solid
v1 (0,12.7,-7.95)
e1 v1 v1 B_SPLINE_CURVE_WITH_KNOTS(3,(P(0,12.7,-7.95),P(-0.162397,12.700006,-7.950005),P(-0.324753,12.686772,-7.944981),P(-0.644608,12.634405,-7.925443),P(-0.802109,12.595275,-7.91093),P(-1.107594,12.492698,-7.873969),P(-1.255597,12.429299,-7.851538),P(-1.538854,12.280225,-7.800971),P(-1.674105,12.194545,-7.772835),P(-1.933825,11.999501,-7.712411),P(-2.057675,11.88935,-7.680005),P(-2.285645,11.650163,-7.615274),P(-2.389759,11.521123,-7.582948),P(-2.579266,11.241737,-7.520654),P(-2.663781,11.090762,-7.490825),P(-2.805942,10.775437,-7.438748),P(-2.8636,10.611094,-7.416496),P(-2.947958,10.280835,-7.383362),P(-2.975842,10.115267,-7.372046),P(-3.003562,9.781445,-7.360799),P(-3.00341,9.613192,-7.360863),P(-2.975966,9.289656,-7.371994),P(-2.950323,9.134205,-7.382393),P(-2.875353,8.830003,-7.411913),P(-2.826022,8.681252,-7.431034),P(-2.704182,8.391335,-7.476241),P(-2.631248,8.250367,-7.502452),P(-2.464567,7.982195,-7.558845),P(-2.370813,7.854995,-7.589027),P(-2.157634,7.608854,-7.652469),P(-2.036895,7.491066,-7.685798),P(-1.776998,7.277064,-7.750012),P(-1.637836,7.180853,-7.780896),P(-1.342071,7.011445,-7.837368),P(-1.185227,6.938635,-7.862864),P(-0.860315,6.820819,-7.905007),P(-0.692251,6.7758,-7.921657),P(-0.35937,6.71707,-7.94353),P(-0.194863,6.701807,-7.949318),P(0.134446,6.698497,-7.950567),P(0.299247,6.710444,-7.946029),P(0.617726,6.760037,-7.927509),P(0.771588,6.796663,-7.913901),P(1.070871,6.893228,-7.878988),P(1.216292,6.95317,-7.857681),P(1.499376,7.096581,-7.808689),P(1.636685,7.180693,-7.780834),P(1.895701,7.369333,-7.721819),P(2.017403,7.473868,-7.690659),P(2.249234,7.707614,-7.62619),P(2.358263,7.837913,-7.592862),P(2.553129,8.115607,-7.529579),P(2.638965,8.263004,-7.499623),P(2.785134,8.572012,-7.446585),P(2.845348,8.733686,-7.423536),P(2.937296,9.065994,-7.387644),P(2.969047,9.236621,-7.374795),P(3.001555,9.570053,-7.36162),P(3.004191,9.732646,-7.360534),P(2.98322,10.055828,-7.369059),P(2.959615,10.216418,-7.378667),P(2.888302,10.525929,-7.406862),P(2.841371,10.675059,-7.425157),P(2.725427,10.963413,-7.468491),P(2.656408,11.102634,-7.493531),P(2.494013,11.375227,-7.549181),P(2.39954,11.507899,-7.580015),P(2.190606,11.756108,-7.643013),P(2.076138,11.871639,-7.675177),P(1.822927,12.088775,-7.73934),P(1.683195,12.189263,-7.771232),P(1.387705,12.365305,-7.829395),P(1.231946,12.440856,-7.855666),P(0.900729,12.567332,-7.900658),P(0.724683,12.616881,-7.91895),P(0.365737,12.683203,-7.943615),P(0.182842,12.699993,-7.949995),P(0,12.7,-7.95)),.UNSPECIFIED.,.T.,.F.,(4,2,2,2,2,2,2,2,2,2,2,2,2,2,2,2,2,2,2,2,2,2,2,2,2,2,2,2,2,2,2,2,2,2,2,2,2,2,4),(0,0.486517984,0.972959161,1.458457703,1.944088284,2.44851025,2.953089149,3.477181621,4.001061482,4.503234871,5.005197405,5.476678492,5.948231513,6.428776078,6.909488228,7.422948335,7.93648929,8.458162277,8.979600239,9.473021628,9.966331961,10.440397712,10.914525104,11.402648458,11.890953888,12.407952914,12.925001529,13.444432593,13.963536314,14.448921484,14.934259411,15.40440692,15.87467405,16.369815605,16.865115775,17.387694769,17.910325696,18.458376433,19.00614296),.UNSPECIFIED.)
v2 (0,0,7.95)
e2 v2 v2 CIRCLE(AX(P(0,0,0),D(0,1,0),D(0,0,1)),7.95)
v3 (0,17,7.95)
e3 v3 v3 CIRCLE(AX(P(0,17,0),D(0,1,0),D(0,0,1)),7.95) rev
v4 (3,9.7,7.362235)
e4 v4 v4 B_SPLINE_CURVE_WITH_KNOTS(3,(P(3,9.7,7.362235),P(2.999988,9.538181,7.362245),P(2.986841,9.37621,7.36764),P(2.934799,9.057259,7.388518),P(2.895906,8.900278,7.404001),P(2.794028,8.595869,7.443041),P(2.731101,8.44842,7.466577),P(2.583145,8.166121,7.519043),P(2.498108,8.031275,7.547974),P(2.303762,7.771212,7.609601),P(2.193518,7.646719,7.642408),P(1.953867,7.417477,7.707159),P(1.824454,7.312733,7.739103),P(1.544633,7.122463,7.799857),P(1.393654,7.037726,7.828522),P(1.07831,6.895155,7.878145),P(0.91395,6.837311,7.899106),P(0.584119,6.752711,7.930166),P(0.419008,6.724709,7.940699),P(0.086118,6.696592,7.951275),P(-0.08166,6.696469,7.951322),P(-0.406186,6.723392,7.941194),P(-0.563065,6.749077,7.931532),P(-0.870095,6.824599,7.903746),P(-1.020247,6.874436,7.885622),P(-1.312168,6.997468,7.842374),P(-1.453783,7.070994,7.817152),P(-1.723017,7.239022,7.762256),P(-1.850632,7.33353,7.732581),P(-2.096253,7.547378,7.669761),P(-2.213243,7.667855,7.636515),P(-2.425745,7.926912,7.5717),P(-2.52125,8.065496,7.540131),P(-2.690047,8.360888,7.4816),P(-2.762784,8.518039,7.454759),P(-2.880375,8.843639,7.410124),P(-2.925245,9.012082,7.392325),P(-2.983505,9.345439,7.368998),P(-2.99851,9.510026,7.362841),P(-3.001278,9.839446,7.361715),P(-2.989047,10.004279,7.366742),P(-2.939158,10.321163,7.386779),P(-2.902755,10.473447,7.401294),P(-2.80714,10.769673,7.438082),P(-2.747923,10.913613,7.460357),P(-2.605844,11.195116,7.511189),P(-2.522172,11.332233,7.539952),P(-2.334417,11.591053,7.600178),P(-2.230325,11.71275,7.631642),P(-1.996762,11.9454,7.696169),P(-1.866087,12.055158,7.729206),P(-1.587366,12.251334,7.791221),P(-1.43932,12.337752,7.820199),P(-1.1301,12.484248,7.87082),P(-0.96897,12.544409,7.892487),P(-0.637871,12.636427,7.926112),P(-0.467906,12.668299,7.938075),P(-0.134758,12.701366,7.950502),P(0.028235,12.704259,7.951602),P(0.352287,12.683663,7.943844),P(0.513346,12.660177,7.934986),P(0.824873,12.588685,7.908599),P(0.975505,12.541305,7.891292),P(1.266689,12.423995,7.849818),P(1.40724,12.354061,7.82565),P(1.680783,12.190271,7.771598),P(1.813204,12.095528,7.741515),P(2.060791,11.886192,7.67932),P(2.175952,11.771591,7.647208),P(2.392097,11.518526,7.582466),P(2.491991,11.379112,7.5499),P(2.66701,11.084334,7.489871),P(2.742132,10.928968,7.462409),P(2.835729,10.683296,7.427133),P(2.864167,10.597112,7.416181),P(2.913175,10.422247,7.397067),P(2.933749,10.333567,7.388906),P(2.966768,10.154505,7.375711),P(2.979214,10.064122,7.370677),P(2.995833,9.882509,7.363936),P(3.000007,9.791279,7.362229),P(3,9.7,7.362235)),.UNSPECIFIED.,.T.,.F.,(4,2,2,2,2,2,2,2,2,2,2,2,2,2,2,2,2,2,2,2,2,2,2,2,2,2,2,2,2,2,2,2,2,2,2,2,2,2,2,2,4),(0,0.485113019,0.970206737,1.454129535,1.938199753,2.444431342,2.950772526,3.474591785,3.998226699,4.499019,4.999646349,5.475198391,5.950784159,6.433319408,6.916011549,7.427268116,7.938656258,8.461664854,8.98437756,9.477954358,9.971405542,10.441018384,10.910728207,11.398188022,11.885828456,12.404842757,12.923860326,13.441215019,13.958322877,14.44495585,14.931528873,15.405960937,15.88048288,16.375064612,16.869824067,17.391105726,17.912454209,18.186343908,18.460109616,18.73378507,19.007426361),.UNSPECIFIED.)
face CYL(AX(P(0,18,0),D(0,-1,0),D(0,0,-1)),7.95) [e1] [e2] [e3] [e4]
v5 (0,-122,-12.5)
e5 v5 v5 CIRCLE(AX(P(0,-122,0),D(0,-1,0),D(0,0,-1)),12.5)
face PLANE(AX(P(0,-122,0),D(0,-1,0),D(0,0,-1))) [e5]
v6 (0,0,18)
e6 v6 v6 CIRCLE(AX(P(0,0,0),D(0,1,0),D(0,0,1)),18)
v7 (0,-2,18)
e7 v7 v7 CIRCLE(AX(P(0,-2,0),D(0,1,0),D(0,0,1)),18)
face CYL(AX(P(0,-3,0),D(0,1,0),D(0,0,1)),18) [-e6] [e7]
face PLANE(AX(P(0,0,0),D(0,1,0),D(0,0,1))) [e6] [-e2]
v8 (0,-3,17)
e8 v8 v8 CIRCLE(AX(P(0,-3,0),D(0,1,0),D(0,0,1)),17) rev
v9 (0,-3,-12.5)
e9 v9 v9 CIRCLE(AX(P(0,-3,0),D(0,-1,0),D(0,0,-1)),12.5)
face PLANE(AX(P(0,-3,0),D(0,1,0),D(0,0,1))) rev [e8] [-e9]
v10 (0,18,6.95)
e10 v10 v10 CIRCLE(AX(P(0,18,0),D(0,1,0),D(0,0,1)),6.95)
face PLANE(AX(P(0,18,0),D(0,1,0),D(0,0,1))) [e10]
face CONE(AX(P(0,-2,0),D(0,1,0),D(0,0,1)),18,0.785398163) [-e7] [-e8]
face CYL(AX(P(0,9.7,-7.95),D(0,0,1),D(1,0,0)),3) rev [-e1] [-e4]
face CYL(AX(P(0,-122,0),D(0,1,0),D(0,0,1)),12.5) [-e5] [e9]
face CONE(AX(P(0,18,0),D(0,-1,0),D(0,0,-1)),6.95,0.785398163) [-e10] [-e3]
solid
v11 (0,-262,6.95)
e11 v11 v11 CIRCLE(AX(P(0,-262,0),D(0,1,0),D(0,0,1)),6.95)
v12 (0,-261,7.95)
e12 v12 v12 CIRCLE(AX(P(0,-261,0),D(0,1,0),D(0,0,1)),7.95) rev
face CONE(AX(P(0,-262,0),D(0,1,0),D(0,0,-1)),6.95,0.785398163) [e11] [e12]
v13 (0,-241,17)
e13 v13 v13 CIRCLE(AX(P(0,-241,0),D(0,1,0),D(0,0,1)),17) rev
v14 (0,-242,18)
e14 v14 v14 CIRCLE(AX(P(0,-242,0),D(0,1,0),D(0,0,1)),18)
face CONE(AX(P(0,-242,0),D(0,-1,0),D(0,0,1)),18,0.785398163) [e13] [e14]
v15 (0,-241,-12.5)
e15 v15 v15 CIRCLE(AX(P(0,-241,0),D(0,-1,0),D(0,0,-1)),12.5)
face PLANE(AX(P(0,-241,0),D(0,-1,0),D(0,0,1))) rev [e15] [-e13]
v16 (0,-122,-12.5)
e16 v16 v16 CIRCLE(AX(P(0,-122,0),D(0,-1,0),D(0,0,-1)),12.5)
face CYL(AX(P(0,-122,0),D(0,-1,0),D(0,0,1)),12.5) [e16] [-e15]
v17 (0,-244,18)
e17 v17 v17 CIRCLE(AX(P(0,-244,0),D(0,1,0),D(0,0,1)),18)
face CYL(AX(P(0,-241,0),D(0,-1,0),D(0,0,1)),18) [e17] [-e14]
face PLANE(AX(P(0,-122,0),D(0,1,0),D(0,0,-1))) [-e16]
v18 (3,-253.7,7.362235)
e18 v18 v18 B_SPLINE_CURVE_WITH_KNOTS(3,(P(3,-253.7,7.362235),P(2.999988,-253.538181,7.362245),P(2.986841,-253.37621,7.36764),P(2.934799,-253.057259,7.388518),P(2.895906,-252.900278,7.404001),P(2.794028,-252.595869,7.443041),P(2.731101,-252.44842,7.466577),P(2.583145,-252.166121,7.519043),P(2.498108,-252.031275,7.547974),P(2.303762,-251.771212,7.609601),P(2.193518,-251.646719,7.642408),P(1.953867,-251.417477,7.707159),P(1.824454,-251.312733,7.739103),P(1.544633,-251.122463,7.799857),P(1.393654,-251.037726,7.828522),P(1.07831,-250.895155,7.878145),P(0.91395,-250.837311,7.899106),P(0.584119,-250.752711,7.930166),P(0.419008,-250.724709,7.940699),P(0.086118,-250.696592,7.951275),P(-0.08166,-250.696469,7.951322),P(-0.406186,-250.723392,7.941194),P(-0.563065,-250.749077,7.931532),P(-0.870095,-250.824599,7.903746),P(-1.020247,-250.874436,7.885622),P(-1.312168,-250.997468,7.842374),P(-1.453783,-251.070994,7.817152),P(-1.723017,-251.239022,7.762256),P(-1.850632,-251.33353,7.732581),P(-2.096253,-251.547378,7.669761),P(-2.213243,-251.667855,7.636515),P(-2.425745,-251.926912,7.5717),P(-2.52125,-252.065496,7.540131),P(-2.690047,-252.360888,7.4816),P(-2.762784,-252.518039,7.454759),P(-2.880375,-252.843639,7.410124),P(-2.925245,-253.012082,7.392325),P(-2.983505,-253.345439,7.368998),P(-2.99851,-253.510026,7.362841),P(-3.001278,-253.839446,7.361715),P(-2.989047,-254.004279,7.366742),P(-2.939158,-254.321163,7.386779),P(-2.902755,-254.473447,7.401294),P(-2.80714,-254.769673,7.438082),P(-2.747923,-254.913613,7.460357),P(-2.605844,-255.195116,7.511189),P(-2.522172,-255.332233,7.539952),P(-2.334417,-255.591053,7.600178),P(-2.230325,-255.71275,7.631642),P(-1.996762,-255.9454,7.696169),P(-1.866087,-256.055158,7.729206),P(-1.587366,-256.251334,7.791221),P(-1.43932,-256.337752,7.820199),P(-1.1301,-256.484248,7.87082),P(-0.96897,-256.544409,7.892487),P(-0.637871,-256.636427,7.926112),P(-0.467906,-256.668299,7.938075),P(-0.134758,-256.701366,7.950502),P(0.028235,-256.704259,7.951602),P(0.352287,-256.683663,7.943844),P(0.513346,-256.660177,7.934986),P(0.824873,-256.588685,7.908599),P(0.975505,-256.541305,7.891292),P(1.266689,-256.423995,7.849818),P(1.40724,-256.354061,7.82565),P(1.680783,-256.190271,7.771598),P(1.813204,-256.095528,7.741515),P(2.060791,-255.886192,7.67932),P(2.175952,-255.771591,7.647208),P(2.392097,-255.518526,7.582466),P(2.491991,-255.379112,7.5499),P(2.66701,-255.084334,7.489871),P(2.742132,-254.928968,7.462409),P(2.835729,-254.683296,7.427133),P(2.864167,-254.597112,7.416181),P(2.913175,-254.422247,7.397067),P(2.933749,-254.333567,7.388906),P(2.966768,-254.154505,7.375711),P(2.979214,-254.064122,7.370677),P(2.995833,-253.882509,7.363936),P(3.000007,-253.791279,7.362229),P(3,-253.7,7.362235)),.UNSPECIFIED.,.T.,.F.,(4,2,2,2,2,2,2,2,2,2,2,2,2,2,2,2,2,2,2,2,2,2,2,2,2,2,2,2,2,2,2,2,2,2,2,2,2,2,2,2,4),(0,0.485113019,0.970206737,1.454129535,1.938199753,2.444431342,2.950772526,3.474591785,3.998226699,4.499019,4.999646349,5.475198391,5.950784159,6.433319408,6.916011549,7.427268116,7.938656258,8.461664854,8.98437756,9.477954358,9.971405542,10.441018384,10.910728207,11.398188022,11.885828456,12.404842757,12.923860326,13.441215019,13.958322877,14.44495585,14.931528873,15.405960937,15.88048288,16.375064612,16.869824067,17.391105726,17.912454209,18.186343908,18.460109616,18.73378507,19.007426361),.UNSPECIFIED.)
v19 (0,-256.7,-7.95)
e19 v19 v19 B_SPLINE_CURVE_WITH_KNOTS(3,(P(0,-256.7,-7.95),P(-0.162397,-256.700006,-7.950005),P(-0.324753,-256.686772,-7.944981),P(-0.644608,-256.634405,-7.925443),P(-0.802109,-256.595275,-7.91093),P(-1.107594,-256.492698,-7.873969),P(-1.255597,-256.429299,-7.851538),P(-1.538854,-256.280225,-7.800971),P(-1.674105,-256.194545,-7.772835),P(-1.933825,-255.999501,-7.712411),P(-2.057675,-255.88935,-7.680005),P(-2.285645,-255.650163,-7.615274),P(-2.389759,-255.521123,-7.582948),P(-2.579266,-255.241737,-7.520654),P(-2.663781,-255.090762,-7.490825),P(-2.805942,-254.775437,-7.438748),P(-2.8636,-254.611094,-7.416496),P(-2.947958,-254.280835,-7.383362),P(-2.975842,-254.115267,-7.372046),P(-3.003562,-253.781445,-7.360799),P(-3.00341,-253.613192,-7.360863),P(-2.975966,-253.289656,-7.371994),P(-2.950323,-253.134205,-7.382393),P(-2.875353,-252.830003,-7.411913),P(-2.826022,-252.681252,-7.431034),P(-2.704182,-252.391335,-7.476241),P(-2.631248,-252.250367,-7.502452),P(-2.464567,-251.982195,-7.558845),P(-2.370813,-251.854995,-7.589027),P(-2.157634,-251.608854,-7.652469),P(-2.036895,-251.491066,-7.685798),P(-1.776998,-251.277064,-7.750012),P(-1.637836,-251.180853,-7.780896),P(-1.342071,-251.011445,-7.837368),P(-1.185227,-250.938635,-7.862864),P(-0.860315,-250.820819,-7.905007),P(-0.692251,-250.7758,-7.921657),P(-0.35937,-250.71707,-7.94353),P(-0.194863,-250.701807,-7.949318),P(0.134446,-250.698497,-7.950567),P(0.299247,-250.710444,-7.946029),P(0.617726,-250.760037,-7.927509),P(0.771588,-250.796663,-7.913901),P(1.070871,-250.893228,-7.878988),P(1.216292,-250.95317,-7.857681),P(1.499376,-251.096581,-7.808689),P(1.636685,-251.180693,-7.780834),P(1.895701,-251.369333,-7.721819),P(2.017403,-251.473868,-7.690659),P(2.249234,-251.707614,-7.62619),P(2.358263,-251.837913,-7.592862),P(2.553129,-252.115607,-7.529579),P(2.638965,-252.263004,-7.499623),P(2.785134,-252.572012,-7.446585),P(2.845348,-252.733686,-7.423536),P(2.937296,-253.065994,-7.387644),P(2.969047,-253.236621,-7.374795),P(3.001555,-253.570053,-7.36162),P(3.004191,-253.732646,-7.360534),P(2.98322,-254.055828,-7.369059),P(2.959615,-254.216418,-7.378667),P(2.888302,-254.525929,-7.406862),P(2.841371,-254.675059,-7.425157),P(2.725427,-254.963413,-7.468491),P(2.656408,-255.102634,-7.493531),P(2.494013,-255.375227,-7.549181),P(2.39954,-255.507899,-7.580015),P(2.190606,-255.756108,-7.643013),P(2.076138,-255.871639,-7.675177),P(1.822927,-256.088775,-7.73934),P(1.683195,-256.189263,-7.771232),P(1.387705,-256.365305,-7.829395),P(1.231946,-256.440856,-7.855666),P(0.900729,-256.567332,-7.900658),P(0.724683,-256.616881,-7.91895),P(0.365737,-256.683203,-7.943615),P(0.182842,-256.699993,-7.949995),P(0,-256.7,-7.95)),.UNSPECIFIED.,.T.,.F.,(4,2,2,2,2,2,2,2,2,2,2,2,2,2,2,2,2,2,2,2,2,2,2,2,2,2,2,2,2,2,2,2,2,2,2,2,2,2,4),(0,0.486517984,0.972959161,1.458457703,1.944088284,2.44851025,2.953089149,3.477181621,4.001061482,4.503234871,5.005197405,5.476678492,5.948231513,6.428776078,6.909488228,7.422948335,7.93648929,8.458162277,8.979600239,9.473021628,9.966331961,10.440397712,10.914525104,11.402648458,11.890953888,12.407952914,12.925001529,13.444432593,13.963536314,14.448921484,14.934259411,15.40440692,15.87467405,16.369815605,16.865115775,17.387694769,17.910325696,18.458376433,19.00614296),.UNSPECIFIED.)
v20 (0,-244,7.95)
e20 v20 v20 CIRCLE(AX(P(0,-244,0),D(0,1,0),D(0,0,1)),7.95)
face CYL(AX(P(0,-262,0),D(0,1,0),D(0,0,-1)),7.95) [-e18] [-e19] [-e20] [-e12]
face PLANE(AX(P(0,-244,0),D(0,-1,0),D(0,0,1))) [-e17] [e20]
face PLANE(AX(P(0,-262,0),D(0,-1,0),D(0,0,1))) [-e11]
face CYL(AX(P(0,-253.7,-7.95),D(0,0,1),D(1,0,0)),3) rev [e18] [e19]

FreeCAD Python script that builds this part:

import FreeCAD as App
import Part
import Sketcher


def edges_at(feature, points):
    """Names of the edges that pass closest to the given points."""
    edges = feature.Shape.Edges
    near = lambda p: min(range(len(edges)), key=lambda i: edges[i].distToShape(Part.Vertex(*p))[0])
    return sorted({f"Edge{near(p) + 1}" for p in points})

doc = App.newDocument("Part")
params = doc.addObject("Spreadsheet::Sheet", "Params")
for row, (alias, value) in enumerate([
    ("sketch1_diameter", "15.9 mm"),
    ("pad1_length", "18 mm"),
    ("chamfer_size", "1 mm"),
    ("sketch2_diameter", "6 mm"),
    ("sketch3_diameter", "36 mm"),
    ("pad2_length", "3 mm"),
    ("chamfer2_size", "1 mm"),
    ("sketch4_diameter", "25 mm"),
    ("pad3_length", "119 mm"),
], start=1):
    params.set(f"A{row}", alias)
    params.set(f"B{row}", "=" + value)
    params.setAlias(f"B{row}", alias)

body = doc.addObject("PartDesign::Body", "Body")

# Sketch on XZ plane
sketch1 = body.newObject("Sketcher::SketchObject", "Sketch")
sketch1.AttachmentSupport = (doc.getObject("XZ_Plane"), [""])
sketch1.MapMode = "FlatFace"
sketch1.addGeometry(Part.Circle(App.Vector(0, 0, 0), App.Vector(0, 0, 1), 8), False)
sketch1.addConstraint([
    Sketcher.Constraint("Coincident", 0, 3, -1, 1),
    Sketcher.Constraint("Diameter", 0, 15.9),
])
sketch1.setExpression("Constraints[1]", "Params.sketch1_diameter")
pad1 = body.newObject("PartDesign::Pad", "Pad")
pad1.Profile = sketch1
pad1.setExpression("Length", "Params.pad1_length")
pad1.Reversed = True
doc.recompute()

chamfer = body.newObject("PartDesign::Chamfer", "Chamfer")
chamfer.Base = (pad1, edges_at(pad1, [(0, 18, -7.95)]))
chamfer.setExpression("Size", "Params.chamfer_size")

# Sketch on XY plane
sketch2 = body.newObject("Sketcher::SketchObject", "Sketch001")
sketch2.AttachmentSupport = (doc.getObject("XY_Plane"), [""])
sketch2.MapMode = "FlatFace"
sketch2.addGeometry(Part.Circle(App.Vector(0, 9.7, 0), App.Vector(0, 0, 1), 3), False)
sketch2.addConstraint([
    Sketcher.Constraint("PointOnObject", 0, 3, -2),
    Sketcher.Constraint("Diameter", 0, 6.0),
    Sketcher.Constraint("DistanceY", -1, 1, 0, 3, 9.7),
])
sketch2.setExpression("Constraints[1]", "Params.sketch2_diameter")
pocket1 = body.newObject("PartDesign::Pocket", "Pocket")
pocket1.Profile = sketch2
pocket1.Type = "ThroughAll"
pocket1.Midplane = True

# Sketch on XZ plane
sketch3 = body.newObject("Sketcher::SketchObject", "Sketch002")
sketch3.AttachmentSupport = (doc.getObject("XZ_Plane"), [""])
sketch3.MapMode = "FlatFace"
sketch3.addGeometry(Part.Circle(App.Vector(0, 0, 0), App.Vector(0, 0, 1), 18), False)
sketch3.addConstraint([
    Sketcher.Constraint("Coincident", 0, 3, -1, 1),
    Sketcher.Constraint("Diameter", 0, 36.0),
])
sketch3.setExpression("Constraints[1]", "Params.sketch3_diameter")
pad2 = body.newObject("PartDesign::Pad", "Pad001")
pad2.Profile = sketch3
pad2.setExpression("Length", "Params.pad2_length")
doc.recompute()

chamfer2 = body.newObject("PartDesign::Chamfer", "Chamfer001")
chamfer2.Base = (pad2, edges_at(pad2, [(0, -3, -18)]))
chamfer2.setExpression("Size", "Params.chamfer2_size")

# Sketch on XZ plane
sketch4 = body.newObject("Sketcher::SketchObject", "Sketch003")
sketch4.AttachmentSupport = (doc.getObject("XZ_Plane"), [""])
sketch4.MapMode = "FlatFace"
sketch4.AttachmentOffset = App.Placement(App.Vector(0, 0, 3), App.Rotation())
sketch4.addGeometry(Part.Circle(App.Vector(0, 0, 0), App.Vector(0, 0, 1), 12), False)
sketch4.addConstraint([
    Sketcher.Constraint("Coincident", 0, 3, -1, 1),
    Sketcher.Constraint("Diameter", 0, 25.0),
])
sketch4.setExpression("Constraints[1]", "Params.sketch4_diameter")
pad3 = body.newObject("PartDesign::Pad", "Pad002")
pad3.Profile = sketch4
pad3.setExpression("Length", "Params.pad3_length")
body2 = doc.addObject("PartDesign::Body", "Body001")
doc.recompute()

mirroring = doc.addObject("Part::Mirroring", "Mirroring")
mirroring.Source = body
mirroring.Base = App.Vector(0, -122, 0)
mirroring.Normal = App.Vector(0, -1, 0)
body2.BaseFeature = mirroring
doc.recompute()
mirroring.Visibility = False

doc.recompute()
